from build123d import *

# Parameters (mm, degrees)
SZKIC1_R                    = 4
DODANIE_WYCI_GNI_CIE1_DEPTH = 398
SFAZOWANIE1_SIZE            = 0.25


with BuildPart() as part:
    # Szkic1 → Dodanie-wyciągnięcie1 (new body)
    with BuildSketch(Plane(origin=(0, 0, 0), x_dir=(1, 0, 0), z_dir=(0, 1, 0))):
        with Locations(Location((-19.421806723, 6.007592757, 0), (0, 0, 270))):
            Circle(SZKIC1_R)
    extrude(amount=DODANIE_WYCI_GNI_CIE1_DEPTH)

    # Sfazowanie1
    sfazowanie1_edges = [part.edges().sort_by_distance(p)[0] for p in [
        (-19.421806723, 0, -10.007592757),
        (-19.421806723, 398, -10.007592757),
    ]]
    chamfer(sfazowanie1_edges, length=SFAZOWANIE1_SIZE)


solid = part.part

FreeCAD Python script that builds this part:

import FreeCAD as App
import Part
import Sketcher
from FreeCAD import Vector
Q = App.Units.Quantity


def edges_at(feature, points):
    """Names of the edges that pass closest to the given points."""
    edges = feature.Shape.Edges
    near = lambda p: min(range(len(edges)), key=lambda i: edges[i].distToShape(Part.Vertex(*p))[0])
    return sorted({f"Edge{near(p) + 1}" for p in points})

doc = App.newDocument("Part")
body = doc.addObject("PartDesign::Body", "Body")

# Sketch on XZ plane
sketch1 = doc.addObject("Sketcher::SketchObject", "Sketch")
body.addObject(sketch1)
sketch1.AttachmentSupport = (doc.XZ_Plane, [""])
sketch1.MapMode = "FlatFace"
sketch1.addGeometry(Part.Circle(Vector(-19.4, -6, 0), Vector(0, 0, 1), 4), False)
sketch1.addConstraint([
    Sketcher.Constraint("Diameter", 0, Q("8 mm")),
    Sketcher.Constraint("DistanceX", 0, 3, -1, 1, Q("19.421807 mm")),
    Sketcher.Constraint("DistanceY", 0, 3, -1, 1, Q("6.007593 mm")),
])
pad1 = doc.addObject("PartDesign::Pad", "Pad")
body.addObject(pad1)
pad1.Profile = sketch1
pad1.Length = 398
pad1.Reversed = True
doc.recompute()

chamfer = doc.addObject("PartDesign::Chamfer", "Chamfer")
body.addObject(chamfer)
chamfer.Base = (pad1, edges_at(pad1, [(-19.422, 0, -10.008), (-19.422, 398, -10.008)]))
chamfer.Size = 0.25

doc.recompute()
